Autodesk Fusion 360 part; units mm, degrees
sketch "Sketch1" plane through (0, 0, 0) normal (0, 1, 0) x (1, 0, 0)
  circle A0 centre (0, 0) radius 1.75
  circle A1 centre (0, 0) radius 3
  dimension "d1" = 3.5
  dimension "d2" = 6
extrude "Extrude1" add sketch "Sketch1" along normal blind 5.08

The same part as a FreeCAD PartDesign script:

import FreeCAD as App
import Part
import Sketcher
from FreeCAD import Vector
Q = App.Units.Quantity

doc = App.newDocument("Part")
body = doc.addObject("PartDesign::Body", "Body")

# Sketch on XZ plane
sketch1 = body.newObject("Sketcher::SketchObject", "Sketch")
sketch1.AttachmentSupport = (doc.getObject("XZ_Plane"), [""])
sketch1.MapMode = "FlatFace"
sketch1.addGeometry(Part.Circle(Vector(0, 0, 0), Vector(0, 0, 1), 3), False)
sketch1.addGeometry(Part.Circle(Vector(0, 0, 0), Vector(0, 0, 1), 1.75), False)
sketch1.addConstraint(Sketcher.Constraint("Coincident", 0, 3, -1, 1))
sketch1.addConstraint(Sketcher.Constraint("Coincident", 1, 3, -1, 1))
sketch1.addConstraint(Sketcher.Constraint("Diameter", 0, Q("6 mm")))
sketch1.addConstraint(Sketcher.Constraint("Diameter", 1, Q("3.5 mm")))
pad1 = body.newObject("PartDesign::Pad", "Pad")
pad1.Profile = sketch1
pad1.Length = 5.08
pad1.Reversed = True

doc.recompute()
